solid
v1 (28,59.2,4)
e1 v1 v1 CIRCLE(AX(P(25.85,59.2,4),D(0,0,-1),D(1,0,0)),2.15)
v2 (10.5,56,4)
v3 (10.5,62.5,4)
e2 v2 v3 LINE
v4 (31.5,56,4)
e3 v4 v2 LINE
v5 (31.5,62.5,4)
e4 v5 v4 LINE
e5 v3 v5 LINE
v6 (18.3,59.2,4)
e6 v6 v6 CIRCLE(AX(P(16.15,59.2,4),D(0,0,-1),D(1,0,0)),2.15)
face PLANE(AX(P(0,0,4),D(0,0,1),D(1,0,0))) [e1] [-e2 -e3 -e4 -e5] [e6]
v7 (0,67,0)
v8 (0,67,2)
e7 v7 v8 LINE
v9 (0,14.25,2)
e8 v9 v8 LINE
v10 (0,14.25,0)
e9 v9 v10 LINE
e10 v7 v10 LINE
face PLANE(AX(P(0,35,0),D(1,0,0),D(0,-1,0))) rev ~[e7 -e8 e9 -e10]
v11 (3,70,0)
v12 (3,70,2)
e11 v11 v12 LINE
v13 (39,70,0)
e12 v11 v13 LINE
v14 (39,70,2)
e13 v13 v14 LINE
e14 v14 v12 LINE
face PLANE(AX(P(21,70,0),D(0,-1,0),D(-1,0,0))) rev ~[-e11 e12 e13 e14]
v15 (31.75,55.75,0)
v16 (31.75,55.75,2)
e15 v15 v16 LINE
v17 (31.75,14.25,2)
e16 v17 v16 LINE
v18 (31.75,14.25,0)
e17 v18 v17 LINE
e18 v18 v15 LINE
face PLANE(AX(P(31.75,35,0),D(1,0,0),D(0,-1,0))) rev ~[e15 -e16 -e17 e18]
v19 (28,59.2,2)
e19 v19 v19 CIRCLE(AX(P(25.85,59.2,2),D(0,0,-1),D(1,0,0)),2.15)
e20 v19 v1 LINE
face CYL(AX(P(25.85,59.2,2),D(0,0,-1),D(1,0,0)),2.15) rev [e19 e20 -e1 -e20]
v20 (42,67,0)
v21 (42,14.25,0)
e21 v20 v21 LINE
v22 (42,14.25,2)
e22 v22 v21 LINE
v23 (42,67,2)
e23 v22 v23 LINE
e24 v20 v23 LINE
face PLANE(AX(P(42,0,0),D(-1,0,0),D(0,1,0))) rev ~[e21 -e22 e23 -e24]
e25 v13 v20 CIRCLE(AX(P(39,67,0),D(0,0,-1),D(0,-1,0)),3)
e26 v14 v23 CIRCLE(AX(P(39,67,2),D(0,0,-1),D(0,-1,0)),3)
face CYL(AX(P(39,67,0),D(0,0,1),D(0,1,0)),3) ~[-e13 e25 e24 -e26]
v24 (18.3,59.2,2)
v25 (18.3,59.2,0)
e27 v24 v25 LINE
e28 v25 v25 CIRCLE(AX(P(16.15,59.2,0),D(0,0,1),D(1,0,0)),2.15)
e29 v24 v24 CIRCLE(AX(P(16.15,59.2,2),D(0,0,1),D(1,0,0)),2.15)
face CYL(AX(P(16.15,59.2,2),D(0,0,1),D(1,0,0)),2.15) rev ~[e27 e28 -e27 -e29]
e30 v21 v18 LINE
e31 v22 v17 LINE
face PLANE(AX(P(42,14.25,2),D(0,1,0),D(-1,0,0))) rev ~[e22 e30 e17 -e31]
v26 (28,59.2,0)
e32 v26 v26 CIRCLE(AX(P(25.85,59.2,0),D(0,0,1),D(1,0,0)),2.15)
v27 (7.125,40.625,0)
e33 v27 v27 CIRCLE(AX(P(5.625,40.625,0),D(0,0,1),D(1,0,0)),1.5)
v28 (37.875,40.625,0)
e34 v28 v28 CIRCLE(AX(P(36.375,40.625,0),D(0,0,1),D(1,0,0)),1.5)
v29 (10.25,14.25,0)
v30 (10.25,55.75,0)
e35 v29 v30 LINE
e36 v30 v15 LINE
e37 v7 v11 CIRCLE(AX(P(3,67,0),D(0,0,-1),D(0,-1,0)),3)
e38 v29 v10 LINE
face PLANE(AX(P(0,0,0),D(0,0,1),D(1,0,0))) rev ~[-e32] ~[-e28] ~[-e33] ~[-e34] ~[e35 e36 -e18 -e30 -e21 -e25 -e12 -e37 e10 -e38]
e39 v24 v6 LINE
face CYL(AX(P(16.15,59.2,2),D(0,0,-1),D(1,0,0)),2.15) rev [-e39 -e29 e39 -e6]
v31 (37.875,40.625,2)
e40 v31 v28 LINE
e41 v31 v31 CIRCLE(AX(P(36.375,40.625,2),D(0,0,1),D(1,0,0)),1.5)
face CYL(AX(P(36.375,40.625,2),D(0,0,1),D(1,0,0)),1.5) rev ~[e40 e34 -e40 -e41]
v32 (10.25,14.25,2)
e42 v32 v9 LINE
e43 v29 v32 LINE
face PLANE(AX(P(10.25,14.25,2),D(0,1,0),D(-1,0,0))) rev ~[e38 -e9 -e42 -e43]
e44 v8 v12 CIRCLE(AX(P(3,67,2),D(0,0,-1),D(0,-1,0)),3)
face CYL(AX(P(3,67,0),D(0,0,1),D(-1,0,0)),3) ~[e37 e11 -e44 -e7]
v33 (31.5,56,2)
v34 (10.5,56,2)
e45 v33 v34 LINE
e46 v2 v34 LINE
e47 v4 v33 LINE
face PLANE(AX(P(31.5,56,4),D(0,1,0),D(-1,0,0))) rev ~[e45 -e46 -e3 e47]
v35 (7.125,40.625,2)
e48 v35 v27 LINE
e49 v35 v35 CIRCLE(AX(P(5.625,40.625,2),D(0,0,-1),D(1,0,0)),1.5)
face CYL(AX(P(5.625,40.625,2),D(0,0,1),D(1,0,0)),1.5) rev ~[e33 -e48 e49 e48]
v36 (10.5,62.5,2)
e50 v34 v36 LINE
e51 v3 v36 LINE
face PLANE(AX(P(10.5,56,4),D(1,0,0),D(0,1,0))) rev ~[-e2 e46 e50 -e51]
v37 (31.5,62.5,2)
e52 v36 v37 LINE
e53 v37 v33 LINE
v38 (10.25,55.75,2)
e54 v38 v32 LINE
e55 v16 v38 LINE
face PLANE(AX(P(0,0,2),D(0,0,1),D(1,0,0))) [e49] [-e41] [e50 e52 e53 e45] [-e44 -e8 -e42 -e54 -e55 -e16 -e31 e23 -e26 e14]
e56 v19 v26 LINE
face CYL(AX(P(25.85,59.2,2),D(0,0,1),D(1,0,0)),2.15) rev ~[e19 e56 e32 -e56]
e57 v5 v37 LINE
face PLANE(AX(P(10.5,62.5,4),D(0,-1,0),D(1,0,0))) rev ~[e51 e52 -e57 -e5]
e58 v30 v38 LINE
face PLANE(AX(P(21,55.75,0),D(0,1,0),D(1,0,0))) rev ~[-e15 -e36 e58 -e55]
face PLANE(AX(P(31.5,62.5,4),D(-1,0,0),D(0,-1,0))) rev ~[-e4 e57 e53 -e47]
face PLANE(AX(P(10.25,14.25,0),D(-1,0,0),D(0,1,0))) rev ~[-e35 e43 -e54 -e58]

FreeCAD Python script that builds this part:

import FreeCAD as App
import Part
import Sketcher


def edges_at(feature, points):
    """Names of the edges that pass closest to the given points."""
    edges = feature.Shape.Edges
    near = lambda p: min(range(len(edges)), key=lambda i: edges[i].distToShape(Part.Vertex(*p))[0])
    return sorted({f"Edge{near(p) + 1}" for p in points})


def add_polygon(sketch, points):
    """Adds a closed chain of lines whose ends are joined by coincident constraints."""
    first, n = sketch.GeometryCount, len(points)
    for a, b in zip(points, points[1:] + points[:1]):
        sketch.addGeometry(Part.LineSegment(App.Vector(*a, 0), App.Vector(*b, 0)), False)
    for i in range(n):
        sketch.addConstraint(Sketcher.Constraint("Coincident", first + i, 2, first + (i + 1) % n, 1))

doc = App.newDocument("Part")
body = doc.addObject("PartDesign::Body", "Body")

sketch1 = body.newObject("Sketcher::SketchObject", "Sketch")
sketch1.AttachmentSupport = (doc.getObject("XY_Plane"), [""])
sketch1.MapMode = "FlatFace"
add_polygon(sketch1, [(0, 0), (42, 0), (42, 70), (0, 70)])
sketch1.addConstraint([
    Sketcher.Constraint("Horizontal", 0),
    Sketcher.Constraint("Vertical", 1),
    Sketcher.Constraint("Horizontal", 2),
    Sketcher.Constraint("Vertical", 3),
    Sketcher.Constraint("Coincident", 3, 2, -1, 1),
    Sketcher.Constraint("DistanceX", 0, 1, 0, 2, 42.0),
    Sketcher.Constraint("DistanceY", 1, 1, 1, 2, 70.0),
])
pad1 = body.newObject("PartDesign::Pad", "Pad")
pad1.Profile = sketch1
pad1.Length = 2
doc.recompute()

fillet = body.newObject("PartDesign::Fillet", "Fillet")
fillet.Base = (pad1, edges_at(pad1, [(42, 70, 1), (0, 70, 1)]))
fillet.Radius = 3

sketch2 = body.newObject("Sketcher::SketchObject", "Sketch001")
sketch2.AttachmentSupport = (doc.getObject("XY_Plane"), [""])
sketch2.MapMode = "FlatFace"
add_polygon(sketch2, [(32, 14), (32, 56), (10, 56), (10, 14)])
sketch2.addConstraint([
    Sketcher.Constraint("Vertical", 0),
    Sketcher.Constraint("Horizontal", 1),
    Sketcher.Constraint("Vertical", 2),
    Sketcher.Constraint("Horizontal", 3),
    Sketcher.Constraint("DistanceX", 1, 2, 1, 1, 21.5),
    Sketcher.Constraint("DistanceY", 0, 1, 0, 2, 41.5),
    Sketcher.Constraint("DistanceX", -1, 1, 0, 2, 31.75),
    Sketcher.Constraint("DistanceY", -1, 1, 0, 2, 55.75),
])
pocket1 = body.newObject("PartDesign::Pocket", "Pocket")
pocket1.Profile = sketch2
pocket1.Length = 6
pocket1.Reversed = True

sketch3 = body.newObject("Sketcher::SketchObject", "Sketch002")
sketch3.AttachmentSupport = (doc.getObject("XY_Plane"), [""])
sketch3.MapMode = "FlatFace"
sketch3.AttachmentOffset = App.Placement(App.Vector(0, 0, 2), App.Rotation())
sketch3.addGeometry([
    Part.Circle(App.Vector(16.1, 59.2, 0), App.Vector(0, 0, 1), 2.1),
    Part.Circle(App.Vector(25.9, 59.2, 0), App.Vector(0, 0, 1), 2.1),
    Part.Circle(App.Vector(16.1, 10.8, 0), App.Vector(0, 0, 1), 2.1),
    Part.Circle(App.Vector(25.9, 10.8, 0), App.Vector(0, 0, 1), 2.1),
], False)
sketch3.addConstraint([
    Sketcher.Constraint("Equal", 0, 1),
    Sketcher.Constraint("Equal", 1, 2),
    Sketcher.Constraint("Equal", 2, 3),
    Sketcher.Constraint("Horizontal", 0, 3, 1, 3),
    Sketcher.Constraint("Horizontal", 2, 3, 3, 3),
    Sketcher.Constraint("Vertical", 0, 3, 2, 3),
    Sketcher.Constraint("Vertical", 1, 3, 3, 3),
    Sketcher.Constraint("Diameter", 0, 4.3),
    Sketcher.Constraint("DistanceX", 0, 3, 1, 3, 9.7),
    Sketcher.Constraint("DistanceY", -1, 1, 0, 3, 59.2),
    Sketcher.Constraint("DistanceY", -1, 1, 2, 3, 10.8),
    Sketcher.Constraint("DistanceX", -1, 1, 0, 3, 16.15),
])
pocket2 = body.newObject("PartDesign::Pocket", "Pocket001")
pocket2.Profile = sketch3
pocket2.Length = 6

sketch4 = body.newObject("Sketcher::SketchObject", "Sketch003")
sketch4.AttachmentSupport = (doc.getObject("XY_Plane"), [""])
sketch4.MapMode = "FlatFace"
sketch4.AttachmentOffset = App.Placement(App.Vector(0, 0, 2), App.Rotation())
add_polygon(sketch4, [(31.8, 55.8), (31.8, 62.8), (10.2, 62.8), (10.2, 55.8)])
sketch4.addGeometry(Part.Circle(App.Vector(16.1, 59.2, 0), App.Vector(0, 0, 1), 2.1), False)
sketch4.addGeometry(Part.Circle(App.Vector(25.9, 59.2, 0), App.Vector(0, 0, 1), 2.1), False)
sketch4.addConstraint([
    Sketcher.Constraint("Vertical", 0),
    Sketcher.Constraint("Horizontal", 1),
    Sketcher.Constraint("Vertical", 2),
    Sketcher.Constraint("Horizontal", 3),
    Sketcher.Constraint("Equal", 4, 5),
    Sketcher.Constraint("Horizontal", 4, 3, 5, 3),
    Sketcher.Constraint("DistanceY", 0, 1, 0, 2, 7.0),
    Sketcher.Constraint("Diameter", 4, 4.3),
    Sketcher.Constraint("DistanceX", 1, 2, 1, 1, 21.5),
    Sketcher.Constraint("DistanceY", -1, 1, 4, 3, 59.2),
    Sketcher.Constraint("DistanceX", 4, 3, 5, 3, 9.7),
    Sketcher.Constraint("DistanceX", 5, 3, 0, 2, 5.9),
    Sketcher.Constraint("DistanceX", -1, 1, 4, 3, 16.15),
    Sketcher.Constraint("DistanceY", -1, 1, 0, 2, 62.75),
])
pad2 = body.newObject("PartDesign::Pad", "Pad001")
pad2.Profile = sketch4
pad2.Length = 2

sketch5 = body.newObject("Sketcher::SketchObject", "Sketch004")
sketch5.AttachmentSupport = (doc.getObject("XY_Plane"), [""])
sketch5.MapMode = "FlatFace"
sketch5.AttachmentOffset = App.Placement(App.Vector(0, 0, 2), App.Rotation())
sketch5.addGeometry([
    Part.Circle(App.Vector(5.6, 40.6, 0), App.Vector(0, 0, 1), 1.5),
    Part.Circle(App.Vector(36.4, 40.6, 0), App.Vector(0, 0, 1), 1.5),
], False)
sketch5.addConstraint([
    Sketcher.Constraint("Equal", 0, 1),
    Sketcher.Constraint("Horizontal", 0, 3, 1, 3),
    Sketcher.Constraint("Diameter", 0, 3.0),
    Sketcher.Constraint("DistanceX", 0, 3, 1, 3, 30.75),
    Sketcher.Constraint("DistanceX", -1, 1, 0, 3, 5.625),
    Sketcher.Constraint("DistanceY", -1, 1, 0, 3, 40.625),
])
pocket3 = body.newObject("PartDesign::Pocket", "Pocket002")
pocket3.Profile = sketch5
pocket3.Length = 10

sketch6 = body.newObject("Sketcher::SketchObject", "Sketch005")
sketch6.AttachmentSupport = (doc.getObject("XY_Plane"), [""])
sketch6.MapMode = "FlatFace"
sketch6.AttachmentOffset = App.Placement(App.Vector(0, 0, 4), App.Rotation())
add_polygon(sketch6, [(10, 56), (32, 56), (32, 63), (10, 63)])
add_polygon(sketch6, [(32, 56), (10, 56), (10, 62), (32, 62)])
sketch6.addConstraint([
    Sketcher.Constraint("Horizontal", 0),
    Sketcher.Constraint("Vertical", 1),
    Sketcher.Constraint("Horizontal", 2),
    Sketcher.Constraint("Vertical", 3),
    Sketcher.Constraint("Horizontal", 4),
    Sketcher.Constraint("Vertical", 5),
    Sketcher.Constraint("Horizontal", 6),
    Sketcher.Constraint("Vertical", 7),
    Sketcher.Constraint("DistanceX", 4, 2, 4, 1, 21.0),
    Sketcher.Constraint("DistanceY", 1, 1, 1, 2, 7.0),
    Sketcher.Constraint("DistanceX", 3, 2, 4, 2, 0.25),
    Sketcher.Constraint("DistanceY", 3, 2, 4, 2, 0.25),
    Sketcher.Constraint("DistanceY", 5, 2, 2, 2, 0.25),
    Sketcher.Constraint("DistanceX", 6, 2, 1, 2, 0.25),
    Sketcher.Constraint("DistanceY", -1, 1, 4, 2, 56.0),
    Sketcher.Constraint("DistanceX", -1, 1, 4, 2, 10.5),
])
pocket4 = body.newObject("PartDesign::Pocket", "Pocket003")
pocket4.Profile = sketch6
pocket4.Length = 2

sketch7 = body.newObject("Sketcher::SketchObject", "Sketch006")
sketch7.AttachmentSupport = (doc.getObject("XY_Plane"), [""])
sketch7.MapMode = "FlatFace"
sketch7.AttachmentOffset = App.Placement(App.Vector(0, 0, 2), App.Rotation())
add_polygon(sketch7, [(42, 14.2), (0, 14.2), (0, 0), (42, 0)])
sketch7.addGeometry(Part.Circle(App.Vector(16.1, 10.8, 0), App.Vector(0, 0, 1), 2.1), False)
sketch7.addGeometry(Part.Circle(App.Vector(25.9, 10.8, 0), App.Vector(0, 0, 1), 2.1), False)
sketch7.addConstraint([
    Sketcher.Constraint("Horizontal", 0),
    Sketcher.Constraint("Vertical", 1),
    Sketcher.Constraint("Horizontal", 2),
    Sketcher.Constraint("Vertical", 3),
    Sketcher.Constraint("Coincident", 1, 2, -1, 1),
    Sketcher.Constraint("Equal", 4, 5),
    Sketcher.Constraint("Horizontal", 4, 3, 5, 3),
    Sketcher.Constraint("Diameter", 4, 4.3),
    Sketcher.Constraint("DistanceX", 0, 2, 0, 1, 42.0),
    Sketcher.Constraint("DistanceY", 1, 2, 1, 1, 14.25),
    Sketcher.Constraint("DistanceY", -1, 1, 4, 3, 10.8),
    Sketcher.Constraint("DistanceX", 4, 3, 5, 3, 9.7),
    Sketcher.Constraint("DistanceX", -1, 1, 4, 3, 16.15),
])
pocket5 = body.newObject("PartDesign::Pocket", "Pocket004")
pocket5.Profile = sketch7
pocket5.Length = 10

doc.recompute()
